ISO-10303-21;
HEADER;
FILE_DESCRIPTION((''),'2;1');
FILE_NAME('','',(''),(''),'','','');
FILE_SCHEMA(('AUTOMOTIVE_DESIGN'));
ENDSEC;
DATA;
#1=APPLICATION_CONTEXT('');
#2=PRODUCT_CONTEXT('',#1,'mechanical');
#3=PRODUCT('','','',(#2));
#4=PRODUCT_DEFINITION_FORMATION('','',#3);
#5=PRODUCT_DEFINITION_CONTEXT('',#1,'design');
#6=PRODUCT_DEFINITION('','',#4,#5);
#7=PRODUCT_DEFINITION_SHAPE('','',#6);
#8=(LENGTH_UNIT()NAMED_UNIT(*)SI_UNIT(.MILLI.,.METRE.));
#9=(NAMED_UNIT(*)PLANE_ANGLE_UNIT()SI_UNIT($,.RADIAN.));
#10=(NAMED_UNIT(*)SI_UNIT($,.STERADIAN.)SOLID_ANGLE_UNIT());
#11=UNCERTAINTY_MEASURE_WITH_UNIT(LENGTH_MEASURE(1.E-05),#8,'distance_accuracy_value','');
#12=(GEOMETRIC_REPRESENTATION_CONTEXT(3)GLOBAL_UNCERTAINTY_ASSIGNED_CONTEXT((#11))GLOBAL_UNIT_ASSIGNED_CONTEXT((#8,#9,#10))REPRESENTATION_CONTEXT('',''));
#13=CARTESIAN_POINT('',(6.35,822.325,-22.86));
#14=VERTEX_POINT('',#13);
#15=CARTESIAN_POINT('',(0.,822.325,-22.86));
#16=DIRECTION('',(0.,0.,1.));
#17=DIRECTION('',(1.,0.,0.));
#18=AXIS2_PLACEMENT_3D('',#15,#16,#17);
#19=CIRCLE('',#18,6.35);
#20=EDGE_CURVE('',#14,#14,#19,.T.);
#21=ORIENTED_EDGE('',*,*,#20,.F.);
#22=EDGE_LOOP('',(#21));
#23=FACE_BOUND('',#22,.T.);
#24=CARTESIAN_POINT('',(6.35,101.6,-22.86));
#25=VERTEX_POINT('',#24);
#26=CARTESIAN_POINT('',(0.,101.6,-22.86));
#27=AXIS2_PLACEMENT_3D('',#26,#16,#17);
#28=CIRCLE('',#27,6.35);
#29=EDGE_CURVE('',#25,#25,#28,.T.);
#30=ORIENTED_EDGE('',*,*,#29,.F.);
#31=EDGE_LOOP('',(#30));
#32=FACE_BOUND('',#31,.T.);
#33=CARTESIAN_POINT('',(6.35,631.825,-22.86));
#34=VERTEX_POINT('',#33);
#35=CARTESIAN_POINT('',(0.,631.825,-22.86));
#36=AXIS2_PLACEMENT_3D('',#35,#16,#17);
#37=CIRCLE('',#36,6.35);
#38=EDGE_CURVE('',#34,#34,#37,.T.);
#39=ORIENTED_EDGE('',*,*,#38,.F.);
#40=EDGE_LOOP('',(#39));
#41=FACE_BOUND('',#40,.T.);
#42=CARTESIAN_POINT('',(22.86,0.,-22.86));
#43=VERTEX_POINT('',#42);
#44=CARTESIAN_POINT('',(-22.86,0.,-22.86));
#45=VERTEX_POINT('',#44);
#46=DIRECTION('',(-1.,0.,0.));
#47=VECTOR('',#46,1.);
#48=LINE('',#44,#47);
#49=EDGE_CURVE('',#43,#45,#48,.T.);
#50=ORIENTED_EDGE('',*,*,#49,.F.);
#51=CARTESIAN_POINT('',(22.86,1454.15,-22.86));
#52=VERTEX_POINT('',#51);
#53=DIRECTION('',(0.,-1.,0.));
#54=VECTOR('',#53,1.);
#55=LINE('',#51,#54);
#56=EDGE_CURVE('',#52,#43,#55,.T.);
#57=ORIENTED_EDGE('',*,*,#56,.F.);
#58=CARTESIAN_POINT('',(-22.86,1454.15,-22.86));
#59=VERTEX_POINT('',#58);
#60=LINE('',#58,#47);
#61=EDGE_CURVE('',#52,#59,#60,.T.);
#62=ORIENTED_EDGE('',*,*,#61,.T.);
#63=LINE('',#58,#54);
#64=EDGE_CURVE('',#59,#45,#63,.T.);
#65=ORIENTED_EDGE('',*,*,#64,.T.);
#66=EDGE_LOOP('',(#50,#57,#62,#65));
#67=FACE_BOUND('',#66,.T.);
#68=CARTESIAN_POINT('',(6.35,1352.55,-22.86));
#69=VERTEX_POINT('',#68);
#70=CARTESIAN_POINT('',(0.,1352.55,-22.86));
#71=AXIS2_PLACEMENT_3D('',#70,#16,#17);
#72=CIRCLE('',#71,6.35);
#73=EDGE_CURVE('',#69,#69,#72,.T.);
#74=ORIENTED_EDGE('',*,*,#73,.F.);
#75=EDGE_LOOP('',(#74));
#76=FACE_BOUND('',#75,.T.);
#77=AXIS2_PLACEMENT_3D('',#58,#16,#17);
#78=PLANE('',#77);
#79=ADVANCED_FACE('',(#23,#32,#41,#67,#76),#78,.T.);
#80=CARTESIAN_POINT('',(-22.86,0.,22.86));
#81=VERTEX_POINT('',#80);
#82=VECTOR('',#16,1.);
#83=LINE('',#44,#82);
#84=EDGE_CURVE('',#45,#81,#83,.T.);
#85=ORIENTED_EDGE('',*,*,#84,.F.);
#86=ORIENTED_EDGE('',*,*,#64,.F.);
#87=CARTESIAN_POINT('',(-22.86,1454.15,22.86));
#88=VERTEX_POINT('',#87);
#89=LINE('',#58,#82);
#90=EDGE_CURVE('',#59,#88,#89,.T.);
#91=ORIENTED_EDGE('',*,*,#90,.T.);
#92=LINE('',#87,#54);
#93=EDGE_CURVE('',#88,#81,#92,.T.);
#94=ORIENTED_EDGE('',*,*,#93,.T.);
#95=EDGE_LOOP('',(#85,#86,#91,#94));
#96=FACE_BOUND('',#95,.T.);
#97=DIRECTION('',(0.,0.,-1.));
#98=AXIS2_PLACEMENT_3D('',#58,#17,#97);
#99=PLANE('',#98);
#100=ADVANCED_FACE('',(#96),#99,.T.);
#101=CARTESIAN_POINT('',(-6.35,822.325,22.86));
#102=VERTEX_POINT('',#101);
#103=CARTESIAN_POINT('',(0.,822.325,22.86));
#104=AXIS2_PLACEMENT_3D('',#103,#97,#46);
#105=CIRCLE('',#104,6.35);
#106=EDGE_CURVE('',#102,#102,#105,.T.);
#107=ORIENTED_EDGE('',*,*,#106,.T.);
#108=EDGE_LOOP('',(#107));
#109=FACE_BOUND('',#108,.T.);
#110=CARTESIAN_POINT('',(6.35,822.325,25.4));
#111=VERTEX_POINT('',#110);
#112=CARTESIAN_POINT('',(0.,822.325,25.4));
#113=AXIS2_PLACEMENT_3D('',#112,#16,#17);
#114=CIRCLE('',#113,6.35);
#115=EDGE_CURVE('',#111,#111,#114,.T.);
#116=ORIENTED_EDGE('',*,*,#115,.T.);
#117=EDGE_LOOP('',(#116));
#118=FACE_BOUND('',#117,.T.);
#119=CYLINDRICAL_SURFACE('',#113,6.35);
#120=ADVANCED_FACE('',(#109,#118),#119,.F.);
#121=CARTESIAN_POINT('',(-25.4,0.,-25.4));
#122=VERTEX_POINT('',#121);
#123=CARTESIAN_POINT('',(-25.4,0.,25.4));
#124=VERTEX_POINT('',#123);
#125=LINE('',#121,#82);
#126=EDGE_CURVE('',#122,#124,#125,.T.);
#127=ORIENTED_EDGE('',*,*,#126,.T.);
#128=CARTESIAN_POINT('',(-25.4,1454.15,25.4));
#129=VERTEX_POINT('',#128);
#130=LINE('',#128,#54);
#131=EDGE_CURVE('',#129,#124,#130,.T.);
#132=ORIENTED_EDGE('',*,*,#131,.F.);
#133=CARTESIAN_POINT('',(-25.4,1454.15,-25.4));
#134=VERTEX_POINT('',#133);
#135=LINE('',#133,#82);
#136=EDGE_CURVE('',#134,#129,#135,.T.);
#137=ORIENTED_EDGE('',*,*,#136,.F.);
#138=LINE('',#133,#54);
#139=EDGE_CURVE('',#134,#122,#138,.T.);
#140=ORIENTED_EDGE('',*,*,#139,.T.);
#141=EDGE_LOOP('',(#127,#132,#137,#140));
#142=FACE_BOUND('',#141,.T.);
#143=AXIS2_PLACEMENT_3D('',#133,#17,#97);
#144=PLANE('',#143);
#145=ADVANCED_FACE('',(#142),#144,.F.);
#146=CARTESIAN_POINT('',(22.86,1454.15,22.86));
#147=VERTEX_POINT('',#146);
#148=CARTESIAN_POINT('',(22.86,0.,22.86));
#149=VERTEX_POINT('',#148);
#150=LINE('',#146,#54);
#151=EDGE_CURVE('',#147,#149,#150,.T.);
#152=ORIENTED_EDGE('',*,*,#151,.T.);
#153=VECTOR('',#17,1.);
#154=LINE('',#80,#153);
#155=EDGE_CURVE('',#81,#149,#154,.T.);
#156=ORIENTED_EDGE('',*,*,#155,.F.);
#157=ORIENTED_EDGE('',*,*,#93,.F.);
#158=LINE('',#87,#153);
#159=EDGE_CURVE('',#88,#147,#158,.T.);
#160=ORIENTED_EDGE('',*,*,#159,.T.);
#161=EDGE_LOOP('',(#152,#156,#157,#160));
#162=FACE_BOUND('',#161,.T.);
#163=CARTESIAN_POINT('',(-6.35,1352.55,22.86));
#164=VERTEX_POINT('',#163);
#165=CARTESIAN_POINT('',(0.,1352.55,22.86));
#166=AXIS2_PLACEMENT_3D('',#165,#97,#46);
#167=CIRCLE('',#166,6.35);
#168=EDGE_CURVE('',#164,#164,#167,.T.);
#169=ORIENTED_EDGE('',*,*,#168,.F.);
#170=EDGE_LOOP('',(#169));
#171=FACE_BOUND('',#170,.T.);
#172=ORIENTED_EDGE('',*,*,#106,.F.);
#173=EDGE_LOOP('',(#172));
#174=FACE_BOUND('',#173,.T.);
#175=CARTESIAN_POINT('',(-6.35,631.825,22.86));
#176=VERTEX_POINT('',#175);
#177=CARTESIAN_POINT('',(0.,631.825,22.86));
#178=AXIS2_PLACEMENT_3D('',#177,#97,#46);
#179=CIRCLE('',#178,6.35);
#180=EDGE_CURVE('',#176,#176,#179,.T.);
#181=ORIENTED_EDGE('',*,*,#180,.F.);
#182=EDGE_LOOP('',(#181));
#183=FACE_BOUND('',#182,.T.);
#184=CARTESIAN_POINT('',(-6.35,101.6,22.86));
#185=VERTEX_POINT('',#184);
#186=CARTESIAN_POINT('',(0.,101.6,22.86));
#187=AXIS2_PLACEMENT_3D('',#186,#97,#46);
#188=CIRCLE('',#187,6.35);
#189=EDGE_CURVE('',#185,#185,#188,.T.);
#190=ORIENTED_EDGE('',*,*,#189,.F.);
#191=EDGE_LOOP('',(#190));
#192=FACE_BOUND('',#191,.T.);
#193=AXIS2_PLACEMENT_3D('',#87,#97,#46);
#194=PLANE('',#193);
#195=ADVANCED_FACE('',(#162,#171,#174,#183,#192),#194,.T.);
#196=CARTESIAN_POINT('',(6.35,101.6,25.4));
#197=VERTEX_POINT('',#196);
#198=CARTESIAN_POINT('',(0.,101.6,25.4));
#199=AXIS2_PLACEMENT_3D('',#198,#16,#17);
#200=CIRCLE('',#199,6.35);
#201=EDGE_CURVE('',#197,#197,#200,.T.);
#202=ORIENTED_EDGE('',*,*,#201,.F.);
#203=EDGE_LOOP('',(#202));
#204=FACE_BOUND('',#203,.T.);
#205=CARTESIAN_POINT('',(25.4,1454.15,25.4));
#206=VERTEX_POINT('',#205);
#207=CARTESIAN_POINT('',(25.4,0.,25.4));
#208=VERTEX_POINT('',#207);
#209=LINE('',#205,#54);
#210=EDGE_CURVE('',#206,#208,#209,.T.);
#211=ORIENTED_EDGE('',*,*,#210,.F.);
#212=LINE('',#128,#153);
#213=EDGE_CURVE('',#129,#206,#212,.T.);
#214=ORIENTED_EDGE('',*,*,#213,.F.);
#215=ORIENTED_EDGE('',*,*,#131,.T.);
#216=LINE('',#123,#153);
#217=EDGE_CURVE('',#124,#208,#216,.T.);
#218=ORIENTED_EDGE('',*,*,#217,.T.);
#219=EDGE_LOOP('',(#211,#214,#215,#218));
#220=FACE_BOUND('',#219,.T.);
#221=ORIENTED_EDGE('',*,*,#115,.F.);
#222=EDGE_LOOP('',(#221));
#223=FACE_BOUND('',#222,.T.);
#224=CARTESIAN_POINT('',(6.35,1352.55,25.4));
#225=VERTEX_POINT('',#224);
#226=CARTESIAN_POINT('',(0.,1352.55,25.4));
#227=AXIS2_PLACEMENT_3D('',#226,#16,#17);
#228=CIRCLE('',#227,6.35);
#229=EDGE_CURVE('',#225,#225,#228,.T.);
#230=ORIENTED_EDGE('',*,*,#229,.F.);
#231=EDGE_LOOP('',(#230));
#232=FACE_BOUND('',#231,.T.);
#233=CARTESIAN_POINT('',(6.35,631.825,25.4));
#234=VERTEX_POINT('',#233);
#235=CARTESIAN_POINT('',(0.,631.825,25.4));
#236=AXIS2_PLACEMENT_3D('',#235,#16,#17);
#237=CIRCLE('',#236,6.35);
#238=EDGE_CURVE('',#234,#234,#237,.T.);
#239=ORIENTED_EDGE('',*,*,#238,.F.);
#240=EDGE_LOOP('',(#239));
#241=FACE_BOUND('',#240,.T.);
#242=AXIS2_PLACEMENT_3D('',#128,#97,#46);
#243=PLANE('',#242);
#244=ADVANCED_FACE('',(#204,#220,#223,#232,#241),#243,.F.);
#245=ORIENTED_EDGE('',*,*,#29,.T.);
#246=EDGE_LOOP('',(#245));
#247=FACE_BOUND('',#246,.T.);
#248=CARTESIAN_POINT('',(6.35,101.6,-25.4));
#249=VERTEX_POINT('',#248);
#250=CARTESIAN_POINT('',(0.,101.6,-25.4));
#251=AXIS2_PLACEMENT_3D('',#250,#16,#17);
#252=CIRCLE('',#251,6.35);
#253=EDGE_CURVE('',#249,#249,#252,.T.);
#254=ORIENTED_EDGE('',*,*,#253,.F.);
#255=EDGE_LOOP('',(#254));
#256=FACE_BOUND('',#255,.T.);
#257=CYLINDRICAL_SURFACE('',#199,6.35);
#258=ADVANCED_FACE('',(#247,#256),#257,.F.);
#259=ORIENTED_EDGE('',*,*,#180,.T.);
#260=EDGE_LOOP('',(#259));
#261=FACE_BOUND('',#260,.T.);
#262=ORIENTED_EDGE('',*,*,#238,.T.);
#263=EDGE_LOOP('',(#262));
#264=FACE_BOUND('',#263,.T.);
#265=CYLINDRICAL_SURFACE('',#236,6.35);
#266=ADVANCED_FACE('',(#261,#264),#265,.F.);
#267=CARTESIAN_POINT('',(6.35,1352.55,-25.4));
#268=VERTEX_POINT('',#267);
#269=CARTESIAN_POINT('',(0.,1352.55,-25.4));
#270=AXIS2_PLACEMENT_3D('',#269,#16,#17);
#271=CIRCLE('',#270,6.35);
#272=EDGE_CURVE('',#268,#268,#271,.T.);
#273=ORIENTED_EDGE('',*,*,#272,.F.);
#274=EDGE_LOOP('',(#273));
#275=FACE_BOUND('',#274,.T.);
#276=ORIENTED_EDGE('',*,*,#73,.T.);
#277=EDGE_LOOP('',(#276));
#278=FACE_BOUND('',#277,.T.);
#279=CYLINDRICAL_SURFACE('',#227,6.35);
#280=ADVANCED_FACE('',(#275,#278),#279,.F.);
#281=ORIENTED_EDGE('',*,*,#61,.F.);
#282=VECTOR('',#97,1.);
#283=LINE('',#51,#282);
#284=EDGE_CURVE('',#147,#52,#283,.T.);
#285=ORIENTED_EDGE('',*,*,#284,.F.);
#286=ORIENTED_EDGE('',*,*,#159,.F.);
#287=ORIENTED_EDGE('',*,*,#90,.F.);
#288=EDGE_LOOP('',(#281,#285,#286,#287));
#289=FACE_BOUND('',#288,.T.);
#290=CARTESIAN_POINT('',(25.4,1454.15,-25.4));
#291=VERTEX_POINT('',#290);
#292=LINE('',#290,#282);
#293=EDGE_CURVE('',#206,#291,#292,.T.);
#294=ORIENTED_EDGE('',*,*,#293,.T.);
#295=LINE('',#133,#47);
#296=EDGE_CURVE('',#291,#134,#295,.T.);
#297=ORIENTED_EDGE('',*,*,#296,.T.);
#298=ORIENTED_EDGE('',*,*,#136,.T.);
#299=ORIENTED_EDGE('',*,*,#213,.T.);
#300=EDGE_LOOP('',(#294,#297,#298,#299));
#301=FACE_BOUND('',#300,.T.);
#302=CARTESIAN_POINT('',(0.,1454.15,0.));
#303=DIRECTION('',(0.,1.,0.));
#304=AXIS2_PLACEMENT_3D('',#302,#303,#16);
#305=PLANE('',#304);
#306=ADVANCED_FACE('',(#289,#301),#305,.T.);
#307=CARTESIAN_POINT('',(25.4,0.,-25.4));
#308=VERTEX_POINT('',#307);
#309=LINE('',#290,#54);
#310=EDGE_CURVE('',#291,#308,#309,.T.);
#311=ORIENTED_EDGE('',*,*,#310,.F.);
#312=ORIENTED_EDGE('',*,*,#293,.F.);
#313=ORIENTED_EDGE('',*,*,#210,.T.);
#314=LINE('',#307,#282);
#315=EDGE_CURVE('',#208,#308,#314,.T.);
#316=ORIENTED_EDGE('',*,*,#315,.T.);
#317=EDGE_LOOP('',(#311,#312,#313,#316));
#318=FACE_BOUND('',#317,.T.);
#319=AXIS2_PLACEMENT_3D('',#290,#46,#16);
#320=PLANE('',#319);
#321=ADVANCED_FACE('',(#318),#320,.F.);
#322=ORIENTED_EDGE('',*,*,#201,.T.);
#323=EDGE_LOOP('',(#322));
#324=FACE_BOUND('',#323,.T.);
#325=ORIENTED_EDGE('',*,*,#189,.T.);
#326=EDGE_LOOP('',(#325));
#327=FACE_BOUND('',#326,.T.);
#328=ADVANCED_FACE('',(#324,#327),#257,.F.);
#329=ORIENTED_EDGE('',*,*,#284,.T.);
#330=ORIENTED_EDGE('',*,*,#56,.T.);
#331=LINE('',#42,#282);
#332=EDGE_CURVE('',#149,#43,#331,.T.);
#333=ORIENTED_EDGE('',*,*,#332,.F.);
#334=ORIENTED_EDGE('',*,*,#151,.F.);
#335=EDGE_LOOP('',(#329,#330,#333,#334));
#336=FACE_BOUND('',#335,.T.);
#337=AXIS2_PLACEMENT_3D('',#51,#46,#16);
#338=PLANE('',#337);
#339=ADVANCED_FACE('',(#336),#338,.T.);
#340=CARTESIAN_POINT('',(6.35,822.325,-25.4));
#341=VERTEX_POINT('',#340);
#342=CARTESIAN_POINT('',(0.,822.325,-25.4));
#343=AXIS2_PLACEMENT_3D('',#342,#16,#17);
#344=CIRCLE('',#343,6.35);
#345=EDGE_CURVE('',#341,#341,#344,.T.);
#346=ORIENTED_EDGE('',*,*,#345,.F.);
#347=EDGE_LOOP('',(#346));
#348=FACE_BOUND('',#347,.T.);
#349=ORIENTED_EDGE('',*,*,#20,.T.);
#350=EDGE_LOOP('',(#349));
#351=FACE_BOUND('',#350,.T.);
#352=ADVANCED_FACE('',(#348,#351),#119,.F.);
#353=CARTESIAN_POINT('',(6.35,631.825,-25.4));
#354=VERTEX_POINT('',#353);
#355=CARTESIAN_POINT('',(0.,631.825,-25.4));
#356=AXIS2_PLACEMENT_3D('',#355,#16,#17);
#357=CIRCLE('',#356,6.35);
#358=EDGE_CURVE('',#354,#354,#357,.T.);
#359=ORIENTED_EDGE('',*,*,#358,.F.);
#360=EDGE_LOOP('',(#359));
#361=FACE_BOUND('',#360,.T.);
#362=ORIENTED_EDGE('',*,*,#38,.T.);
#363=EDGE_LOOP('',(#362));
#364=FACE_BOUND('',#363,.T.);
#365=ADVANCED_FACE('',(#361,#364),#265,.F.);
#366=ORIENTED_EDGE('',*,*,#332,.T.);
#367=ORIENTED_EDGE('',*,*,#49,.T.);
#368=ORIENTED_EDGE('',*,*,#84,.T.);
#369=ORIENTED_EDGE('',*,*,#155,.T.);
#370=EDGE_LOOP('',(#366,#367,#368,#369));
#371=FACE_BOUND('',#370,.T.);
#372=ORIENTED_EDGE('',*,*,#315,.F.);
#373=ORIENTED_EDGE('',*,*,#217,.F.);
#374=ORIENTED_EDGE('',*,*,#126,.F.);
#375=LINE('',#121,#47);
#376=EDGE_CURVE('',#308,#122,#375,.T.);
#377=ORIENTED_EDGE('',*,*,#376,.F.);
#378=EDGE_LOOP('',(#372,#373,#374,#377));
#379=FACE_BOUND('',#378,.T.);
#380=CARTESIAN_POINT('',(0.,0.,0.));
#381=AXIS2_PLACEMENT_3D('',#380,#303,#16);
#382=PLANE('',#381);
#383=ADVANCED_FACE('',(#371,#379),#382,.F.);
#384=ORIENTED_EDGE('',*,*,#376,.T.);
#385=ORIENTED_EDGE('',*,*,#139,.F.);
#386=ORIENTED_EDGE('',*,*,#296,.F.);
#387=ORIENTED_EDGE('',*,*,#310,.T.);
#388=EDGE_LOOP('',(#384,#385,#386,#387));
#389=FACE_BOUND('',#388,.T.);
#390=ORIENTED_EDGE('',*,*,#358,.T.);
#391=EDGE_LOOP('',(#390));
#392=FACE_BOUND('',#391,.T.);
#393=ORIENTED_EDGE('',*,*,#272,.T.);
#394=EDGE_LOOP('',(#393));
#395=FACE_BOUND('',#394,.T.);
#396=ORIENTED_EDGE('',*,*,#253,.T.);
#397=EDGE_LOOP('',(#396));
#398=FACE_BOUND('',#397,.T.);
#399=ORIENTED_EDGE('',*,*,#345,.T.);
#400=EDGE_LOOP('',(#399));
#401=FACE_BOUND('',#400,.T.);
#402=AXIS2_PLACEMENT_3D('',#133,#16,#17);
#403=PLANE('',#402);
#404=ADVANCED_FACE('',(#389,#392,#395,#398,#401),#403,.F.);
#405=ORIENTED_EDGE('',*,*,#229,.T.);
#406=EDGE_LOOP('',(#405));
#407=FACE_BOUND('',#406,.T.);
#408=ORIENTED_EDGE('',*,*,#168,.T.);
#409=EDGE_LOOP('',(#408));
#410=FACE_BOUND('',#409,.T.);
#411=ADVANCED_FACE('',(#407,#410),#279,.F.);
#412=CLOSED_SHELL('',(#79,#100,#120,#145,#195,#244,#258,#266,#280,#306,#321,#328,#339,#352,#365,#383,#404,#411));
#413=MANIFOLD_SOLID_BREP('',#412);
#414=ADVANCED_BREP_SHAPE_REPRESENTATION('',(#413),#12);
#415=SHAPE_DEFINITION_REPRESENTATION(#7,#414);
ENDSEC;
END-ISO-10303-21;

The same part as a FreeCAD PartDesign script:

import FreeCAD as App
import Part
import Sketcher
Q = App.Units.Quantity

doc = App.newDocument("Part")
body = doc.addObject("PartDesign::Body", "Body")

sketch1 = body.newObject("Sketcher::SketchObject", "Sketch")
sketch1.AttachmentSupport = (doc.getObject("XZ_Plane"), [""])
sketch1.MapMode = "FlatFace"
sketch1.addGeometry([
    Part.LineSegment(App.Vector(-25, -25, 0), App.Vector(-25, 25, 0)),
    Part.LineSegment(App.Vector(-25, 25, 0), App.Vector(25, 25, 0)),
    Part.LineSegment(App.Vector(25, 25, 0), App.Vector(25, -25, 0)),
    Part.LineSegment(App.Vector(25, -25, 0), App.Vector(-25, -25, 0)),
    Part.LineSegment(App.Vector(23, 23, 0), App.Vector(-23, 23, 0)),
    Part.LineSegment(App.Vector(-23, 23, 0), App.Vector(-23, -23, 0)),
    Part.LineSegment(App.Vector(-23, -23, 0), App.Vector(23, -23, 0)),
    Part.LineSegment(App.Vector(23, -23, 0), App.Vector(23, 23, 0)),
], False)
sketch1.addConstraint([
    Sketcher.Constraint("Coincident", 0, 2, 1, 1),
    Sketcher.Constraint("Coincident", 1, 2, 2, 1),
    Sketcher.Constraint("Coincident", 2, 2, 3, 1),
    Sketcher.Constraint("Coincident", 3, 2, 0, 1),
    Sketcher.Constraint("Coincident", 4, 2, 5, 1),
    Sketcher.Constraint("Coincident", 5, 2, 6, 1),
    Sketcher.Constraint("Coincident", 6, 2, 7, 1),
    Sketcher.Constraint("Coincident", 7, 2, 4, 1),
    Sketcher.Constraint("Vertical", 0),
    Sketcher.Constraint("Horizontal", 1),
    Sketcher.Constraint("Vertical", 2),
    Sketcher.Constraint("Horizontal", 3),
    Sketcher.Constraint("Horizontal", 4),
    Sketcher.Constraint("Vertical", 5),
    Sketcher.Constraint("Horizontal", 6),
    Sketcher.Constraint("Vertical", 7),
    Sketcher.Constraint("Symmetric", 0, 2, 2, 2, -1, 1),
    Sketcher.Constraint("Symmetric", 4, 2, 6, 2, -1, 1),
    Sketcher.Constraint("Equal", 3, 0),
    Sketcher.Constraint("Equal", 6, 5),
    Sketcher.Constraint("DistanceX", 1, 1, 1, 2, Q("2 in")),
    Sketcher.Constraint("DistanceX", 4, 2, 4, 1, Q("1.8 in")),
])
pad1 = body.newObject("PartDesign::Pad", "Pad")
pad1.Profile = sketch1
pad1.Length = Q("57.25 in")
pad1.Reversed = True

sketch2 = body.newObject("Sketcher::SketchObject", "Sketch001")
sketch2.AttachmentSupport = (doc.getObject("XY_Plane"), [""])
sketch2.MapMode = "FlatFace"
sketch2.AttachmentOffset = App.Placement(App.Vector(0, 0, 1 * 25.4), App.Rotation())
sketch2.addGeometry([
    Part.Circle(App.Vector(0, 1353, 0), App.Vector(0, 0, 1), 6),
    Part.Circle(App.Vector(0, 102, 0), App.Vector(0, 0, 1), 6),
], False)
sketch2.addConstraint([
    Sketcher.Constraint("Equal", 0, 1),
    Sketcher.Constraint("PointOnObject", 0, 3, -2),
    Sketcher.Constraint("PointOnObject", 1, 3, -2),
    Sketcher.Constraint("Diameter", 0, Q("0.5 in")),
    Sketcher.Constraint("DistanceY", -1, 1, 1, 3, Q("4 in")),
    Sketcher.Constraint("DistanceY", -1, 1, 0, 3, Q("53.25 in")),
])
doc.recompute()
hole = body.newObject("PartDesign::Hole", "Hole")
hole.Profile = sketch2
hole.ThreadType = "None"
hole.Diameter = Q("0.5 in")
hole.DepthType = "ThroughAll"

sketch3 = body.newObject("Sketcher::SketchObject", "Sketch002")
sketch3.AttachmentSupport = (doc.getObject("XY_Plane"), [""])
sketch3.MapMode = "FlatFace"
sketch3.AttachmentOffset = App.Placement(App.Vector(0, 0, 1 * 25.4), App.Rotation())
sketch3.addGeometry([
    Part.Circle(App.Vector(0, 822, 0), App.Vector(0, 0, 1), 6),
    Part.Circle(App.Vector(0, 632, 0), App.Vector(0, 0, 1), 6),
], False)
sketch3.addConstraint([
    Sketcher.Constraint("Equal", 0, 1),
    Sketcher.Constraint("PointOnObject", 0, 3, -2),
    Sketcher.Constraint("PointOnObject", 1, 3, -2),
    Sketcher.Constraint("Diameter", 0, Q("0.5 in")),
    Sketcher.Constraint("DistanceY", 1, 3, 0, 3, Q("7.5 in")),
    Sketcher.Constraint("DistanceY", -1, 1, 0, 3, Q("32.375 in")),
])
doc.recompute()
hole2 = body.newObject("PartDesign::Hole", "Hole001")
hole2.Profile = sketch3
hole2.ThreadType = "None"
hole2.Diameter = Q("0.5 in")
hole2.DepthType = "ThroughAll"

doc.recompute()
